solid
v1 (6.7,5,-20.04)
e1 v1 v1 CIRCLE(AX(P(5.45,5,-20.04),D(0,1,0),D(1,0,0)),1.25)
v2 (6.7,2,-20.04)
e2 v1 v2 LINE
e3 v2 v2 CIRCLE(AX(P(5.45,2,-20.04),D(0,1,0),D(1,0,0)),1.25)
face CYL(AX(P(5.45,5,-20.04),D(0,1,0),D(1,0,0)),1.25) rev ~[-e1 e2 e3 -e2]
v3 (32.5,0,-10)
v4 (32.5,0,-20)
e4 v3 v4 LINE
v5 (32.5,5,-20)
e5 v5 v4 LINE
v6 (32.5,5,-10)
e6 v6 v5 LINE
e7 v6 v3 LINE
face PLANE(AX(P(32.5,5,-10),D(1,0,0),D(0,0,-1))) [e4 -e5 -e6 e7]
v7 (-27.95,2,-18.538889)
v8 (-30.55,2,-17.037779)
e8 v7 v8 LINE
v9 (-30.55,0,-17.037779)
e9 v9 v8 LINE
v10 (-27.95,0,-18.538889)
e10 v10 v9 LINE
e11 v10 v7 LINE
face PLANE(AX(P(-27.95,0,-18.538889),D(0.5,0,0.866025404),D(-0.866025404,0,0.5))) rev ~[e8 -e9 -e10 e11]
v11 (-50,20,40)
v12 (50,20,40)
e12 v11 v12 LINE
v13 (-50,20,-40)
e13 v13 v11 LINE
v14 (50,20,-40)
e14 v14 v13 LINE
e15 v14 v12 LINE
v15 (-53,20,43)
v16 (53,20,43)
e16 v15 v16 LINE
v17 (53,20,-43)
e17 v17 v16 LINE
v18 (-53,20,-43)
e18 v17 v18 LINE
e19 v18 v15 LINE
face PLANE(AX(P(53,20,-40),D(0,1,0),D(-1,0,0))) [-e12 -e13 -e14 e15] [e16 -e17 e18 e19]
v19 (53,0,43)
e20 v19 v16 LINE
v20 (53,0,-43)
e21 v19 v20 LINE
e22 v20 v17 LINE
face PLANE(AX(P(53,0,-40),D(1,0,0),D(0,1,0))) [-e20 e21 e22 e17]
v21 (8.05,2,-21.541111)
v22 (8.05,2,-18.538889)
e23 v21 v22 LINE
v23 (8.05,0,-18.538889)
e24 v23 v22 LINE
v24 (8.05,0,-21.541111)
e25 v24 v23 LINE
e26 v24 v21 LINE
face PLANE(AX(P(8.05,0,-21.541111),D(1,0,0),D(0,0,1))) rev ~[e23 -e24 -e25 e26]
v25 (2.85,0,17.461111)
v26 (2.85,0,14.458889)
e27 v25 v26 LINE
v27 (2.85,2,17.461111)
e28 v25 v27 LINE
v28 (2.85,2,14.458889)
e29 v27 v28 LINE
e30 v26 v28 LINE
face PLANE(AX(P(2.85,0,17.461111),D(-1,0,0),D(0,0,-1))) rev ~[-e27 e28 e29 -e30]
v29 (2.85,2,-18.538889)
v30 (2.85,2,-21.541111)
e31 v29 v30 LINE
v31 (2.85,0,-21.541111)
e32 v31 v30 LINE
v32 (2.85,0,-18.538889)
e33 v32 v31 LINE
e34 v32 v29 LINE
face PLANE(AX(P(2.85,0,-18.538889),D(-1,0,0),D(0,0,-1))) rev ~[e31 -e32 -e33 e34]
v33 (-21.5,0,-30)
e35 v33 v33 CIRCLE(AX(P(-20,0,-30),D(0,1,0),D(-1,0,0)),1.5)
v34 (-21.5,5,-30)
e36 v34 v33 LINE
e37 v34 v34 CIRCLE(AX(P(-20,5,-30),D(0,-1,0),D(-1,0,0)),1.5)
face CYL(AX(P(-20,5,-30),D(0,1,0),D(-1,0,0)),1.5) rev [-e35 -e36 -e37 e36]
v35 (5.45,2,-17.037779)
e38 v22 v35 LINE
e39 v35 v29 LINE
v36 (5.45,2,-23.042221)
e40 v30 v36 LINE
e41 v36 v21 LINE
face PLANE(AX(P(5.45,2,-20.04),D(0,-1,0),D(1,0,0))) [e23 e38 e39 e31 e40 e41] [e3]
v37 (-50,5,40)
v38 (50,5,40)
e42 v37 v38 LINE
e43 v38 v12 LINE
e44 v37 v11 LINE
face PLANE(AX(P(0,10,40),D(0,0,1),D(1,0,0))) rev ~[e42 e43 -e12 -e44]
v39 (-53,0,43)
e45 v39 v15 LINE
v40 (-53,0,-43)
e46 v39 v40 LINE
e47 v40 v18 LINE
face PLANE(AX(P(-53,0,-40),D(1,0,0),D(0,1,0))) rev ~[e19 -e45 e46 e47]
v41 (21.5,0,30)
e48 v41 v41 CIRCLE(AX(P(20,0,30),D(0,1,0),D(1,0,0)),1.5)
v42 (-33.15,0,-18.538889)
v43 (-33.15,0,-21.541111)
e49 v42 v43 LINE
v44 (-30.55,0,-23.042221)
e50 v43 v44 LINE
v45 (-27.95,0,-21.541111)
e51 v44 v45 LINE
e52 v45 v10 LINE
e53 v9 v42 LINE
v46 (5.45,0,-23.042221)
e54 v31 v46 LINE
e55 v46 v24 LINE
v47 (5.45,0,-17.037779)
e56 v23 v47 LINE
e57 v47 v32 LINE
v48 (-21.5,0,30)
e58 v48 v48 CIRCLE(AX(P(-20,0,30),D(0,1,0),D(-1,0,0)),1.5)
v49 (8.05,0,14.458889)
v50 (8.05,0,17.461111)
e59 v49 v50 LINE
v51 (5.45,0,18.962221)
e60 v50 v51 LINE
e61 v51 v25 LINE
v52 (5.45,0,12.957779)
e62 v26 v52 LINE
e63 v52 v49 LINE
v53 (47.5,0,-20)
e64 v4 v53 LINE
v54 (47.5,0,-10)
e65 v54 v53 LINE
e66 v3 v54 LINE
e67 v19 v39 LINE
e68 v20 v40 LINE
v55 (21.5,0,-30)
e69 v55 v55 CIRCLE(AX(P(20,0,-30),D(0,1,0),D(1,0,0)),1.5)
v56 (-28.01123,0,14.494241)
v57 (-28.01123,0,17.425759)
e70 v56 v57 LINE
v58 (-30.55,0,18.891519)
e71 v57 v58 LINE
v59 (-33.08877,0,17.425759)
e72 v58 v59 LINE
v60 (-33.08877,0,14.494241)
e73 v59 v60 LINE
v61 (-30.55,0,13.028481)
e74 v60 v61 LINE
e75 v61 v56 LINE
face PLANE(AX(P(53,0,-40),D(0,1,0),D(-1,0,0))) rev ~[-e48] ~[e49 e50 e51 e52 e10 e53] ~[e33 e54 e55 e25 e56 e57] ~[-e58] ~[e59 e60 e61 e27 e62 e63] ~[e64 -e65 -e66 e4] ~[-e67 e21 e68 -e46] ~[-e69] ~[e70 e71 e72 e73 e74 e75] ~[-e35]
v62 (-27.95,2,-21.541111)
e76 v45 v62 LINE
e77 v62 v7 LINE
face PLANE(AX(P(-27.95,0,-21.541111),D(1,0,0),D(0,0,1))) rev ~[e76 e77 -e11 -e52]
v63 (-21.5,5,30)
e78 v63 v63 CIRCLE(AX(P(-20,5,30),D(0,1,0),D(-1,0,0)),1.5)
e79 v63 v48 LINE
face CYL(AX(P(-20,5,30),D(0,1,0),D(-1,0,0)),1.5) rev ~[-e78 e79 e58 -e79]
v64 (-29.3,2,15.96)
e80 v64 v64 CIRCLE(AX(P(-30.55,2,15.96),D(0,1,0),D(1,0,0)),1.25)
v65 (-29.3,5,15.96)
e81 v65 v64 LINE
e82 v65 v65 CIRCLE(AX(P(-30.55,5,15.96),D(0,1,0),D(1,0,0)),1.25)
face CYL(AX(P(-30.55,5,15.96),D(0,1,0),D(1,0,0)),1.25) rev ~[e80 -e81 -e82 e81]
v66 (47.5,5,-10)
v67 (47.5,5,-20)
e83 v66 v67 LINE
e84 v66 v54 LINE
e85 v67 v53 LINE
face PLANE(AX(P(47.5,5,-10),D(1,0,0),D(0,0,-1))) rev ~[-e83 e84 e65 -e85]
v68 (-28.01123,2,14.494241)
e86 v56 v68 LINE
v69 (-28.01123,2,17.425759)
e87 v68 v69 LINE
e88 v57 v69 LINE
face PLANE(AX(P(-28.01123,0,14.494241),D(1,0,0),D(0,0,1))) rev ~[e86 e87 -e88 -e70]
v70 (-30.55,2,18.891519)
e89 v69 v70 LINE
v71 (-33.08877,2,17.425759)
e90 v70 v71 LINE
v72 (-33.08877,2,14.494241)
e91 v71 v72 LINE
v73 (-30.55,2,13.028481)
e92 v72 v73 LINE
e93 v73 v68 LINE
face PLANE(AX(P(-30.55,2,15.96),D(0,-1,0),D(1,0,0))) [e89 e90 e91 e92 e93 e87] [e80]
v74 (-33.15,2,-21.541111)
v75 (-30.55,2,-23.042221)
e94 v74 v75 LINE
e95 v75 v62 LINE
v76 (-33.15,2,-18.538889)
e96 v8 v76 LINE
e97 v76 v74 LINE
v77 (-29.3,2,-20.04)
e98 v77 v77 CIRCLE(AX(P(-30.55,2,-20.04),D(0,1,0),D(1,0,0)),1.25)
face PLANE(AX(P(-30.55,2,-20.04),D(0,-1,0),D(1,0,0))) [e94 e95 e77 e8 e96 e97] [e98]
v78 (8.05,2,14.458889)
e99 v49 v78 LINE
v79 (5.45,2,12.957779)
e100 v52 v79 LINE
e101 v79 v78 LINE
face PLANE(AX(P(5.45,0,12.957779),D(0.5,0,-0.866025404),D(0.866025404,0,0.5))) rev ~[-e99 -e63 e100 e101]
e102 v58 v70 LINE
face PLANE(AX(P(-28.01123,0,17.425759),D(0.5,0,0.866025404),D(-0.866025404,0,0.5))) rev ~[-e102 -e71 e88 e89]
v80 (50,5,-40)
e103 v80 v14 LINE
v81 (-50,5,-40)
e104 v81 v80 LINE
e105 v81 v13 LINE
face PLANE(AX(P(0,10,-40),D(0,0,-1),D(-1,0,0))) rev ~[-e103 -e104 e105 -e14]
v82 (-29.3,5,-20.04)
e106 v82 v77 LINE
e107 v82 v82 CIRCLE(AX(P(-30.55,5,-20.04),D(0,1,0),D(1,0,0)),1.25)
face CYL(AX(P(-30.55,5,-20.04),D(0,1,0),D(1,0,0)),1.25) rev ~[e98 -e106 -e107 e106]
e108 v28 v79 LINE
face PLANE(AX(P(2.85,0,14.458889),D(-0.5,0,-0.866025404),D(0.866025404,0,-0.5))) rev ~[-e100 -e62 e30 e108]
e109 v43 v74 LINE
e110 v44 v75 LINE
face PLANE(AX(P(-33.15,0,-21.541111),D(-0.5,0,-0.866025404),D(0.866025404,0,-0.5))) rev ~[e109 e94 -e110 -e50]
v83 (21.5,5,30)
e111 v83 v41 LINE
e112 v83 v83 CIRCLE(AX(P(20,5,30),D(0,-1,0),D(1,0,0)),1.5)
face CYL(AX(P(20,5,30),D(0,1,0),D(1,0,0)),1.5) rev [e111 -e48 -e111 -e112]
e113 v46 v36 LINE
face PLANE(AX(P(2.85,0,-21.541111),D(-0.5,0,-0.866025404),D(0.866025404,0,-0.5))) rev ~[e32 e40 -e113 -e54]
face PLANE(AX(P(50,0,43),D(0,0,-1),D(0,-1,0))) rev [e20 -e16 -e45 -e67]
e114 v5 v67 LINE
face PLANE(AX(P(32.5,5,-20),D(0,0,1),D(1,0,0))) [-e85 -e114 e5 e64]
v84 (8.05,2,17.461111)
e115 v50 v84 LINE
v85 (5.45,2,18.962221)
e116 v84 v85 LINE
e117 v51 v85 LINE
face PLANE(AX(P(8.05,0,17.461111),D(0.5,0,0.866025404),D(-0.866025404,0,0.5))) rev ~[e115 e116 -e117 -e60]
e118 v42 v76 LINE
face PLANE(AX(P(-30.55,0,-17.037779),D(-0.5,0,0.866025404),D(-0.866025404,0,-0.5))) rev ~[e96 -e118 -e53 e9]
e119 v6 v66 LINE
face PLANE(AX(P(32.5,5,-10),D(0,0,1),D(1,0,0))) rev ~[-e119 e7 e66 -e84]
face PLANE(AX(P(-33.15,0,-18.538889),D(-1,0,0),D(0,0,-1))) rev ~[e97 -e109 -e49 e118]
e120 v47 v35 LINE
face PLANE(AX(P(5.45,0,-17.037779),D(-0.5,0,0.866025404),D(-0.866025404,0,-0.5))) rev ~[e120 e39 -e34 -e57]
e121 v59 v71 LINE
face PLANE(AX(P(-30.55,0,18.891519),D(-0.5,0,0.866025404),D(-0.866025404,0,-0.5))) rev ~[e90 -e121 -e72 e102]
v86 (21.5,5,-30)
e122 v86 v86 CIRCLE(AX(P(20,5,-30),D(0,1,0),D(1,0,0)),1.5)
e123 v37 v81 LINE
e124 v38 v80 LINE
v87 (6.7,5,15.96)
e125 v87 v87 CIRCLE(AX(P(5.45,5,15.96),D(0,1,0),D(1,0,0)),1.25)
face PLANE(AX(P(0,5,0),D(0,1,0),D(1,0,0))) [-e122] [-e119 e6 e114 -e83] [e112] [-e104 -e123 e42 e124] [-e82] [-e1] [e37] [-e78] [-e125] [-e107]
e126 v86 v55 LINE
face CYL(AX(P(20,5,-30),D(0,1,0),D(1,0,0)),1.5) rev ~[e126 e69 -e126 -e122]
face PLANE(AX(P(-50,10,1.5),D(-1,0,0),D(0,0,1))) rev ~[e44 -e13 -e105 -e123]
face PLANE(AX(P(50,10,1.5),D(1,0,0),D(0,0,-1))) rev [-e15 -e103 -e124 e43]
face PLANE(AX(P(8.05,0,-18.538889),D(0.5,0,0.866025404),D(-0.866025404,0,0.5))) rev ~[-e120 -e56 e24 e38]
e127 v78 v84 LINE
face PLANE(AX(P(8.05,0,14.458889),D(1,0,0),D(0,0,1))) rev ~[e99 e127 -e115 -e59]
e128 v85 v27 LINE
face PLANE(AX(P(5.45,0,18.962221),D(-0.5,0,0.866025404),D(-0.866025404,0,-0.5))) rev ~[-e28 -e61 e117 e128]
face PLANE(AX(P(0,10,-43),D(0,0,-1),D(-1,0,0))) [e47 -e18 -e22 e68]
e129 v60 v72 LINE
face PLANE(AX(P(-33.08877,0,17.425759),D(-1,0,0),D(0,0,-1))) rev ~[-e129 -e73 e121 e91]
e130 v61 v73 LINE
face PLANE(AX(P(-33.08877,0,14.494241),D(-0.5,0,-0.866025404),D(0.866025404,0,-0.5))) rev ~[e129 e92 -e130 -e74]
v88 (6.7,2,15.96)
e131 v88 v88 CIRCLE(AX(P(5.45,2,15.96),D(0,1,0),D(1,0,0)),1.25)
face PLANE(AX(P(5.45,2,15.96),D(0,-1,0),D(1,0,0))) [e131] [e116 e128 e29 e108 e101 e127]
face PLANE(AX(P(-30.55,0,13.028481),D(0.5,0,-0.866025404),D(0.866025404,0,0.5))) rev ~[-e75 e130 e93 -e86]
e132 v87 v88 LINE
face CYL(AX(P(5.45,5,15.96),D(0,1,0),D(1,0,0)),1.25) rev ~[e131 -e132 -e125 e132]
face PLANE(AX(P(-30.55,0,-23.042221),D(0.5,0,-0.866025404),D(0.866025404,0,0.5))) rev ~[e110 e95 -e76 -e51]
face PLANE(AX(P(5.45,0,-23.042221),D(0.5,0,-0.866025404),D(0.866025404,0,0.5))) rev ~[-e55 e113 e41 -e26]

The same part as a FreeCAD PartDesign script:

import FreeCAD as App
import Part
import Sketcher

V = App.Vector
Q = App.Units.Quantity


def add_polygon(sketch, points):
    """Adds a closed chain of lines whose ends are joined by coincident constraints."""
    first, n = sketch.GeometryCount, len(points)
    for a, b in zip(points, points[1:] + points[:1]):
        sketch.addGeometry(Part.LineSegment(App.Vector(*a, 0), App.Vector(*b, 0)), False)
    for i in range(n):
        sketch.addConstraint(Sketcher.Constraint("Coincident", first + i, 2, first + (i + 1) % n, 1))

doc = App.newDocument("Part")
body = doc.addObject("PartDesign::Body", "Body")

# Sketch on XZ plane
sketch1 = body.newObject("Sketcher::SketchObject", "Sketch")
sketch1.AttachmentSupport = (doc.getObject("XZ_Plane"), [""])
sketch1.MapMode = "FlatFace"
add_polygon(sketch1, [(-50, -40), (-50, 40), (50, 40), (50, -40)])  # lines 0-3
sketch1.addConstraint(Sketcher.Constraint("Vertical", 0))
sketch1.addConstraint(Sketcher.Constraint("Horizontal", 1))
sketch1.addConstraint(Sketcher.Constraint("Vertical", 2))
sketch1.addConstraint(Sketcher.Constraint("Horizontal", 3))
sketch1.addConstraint(Sketcher.Constraint("Symmetric", 0, 2, 2, 2, -1, 1))
sketch1.addConstraint(Sketcher.Constraint("DistanceX", 1, 1, 1, 2, 100.0))
sketch1.addConstraint(Sketcher.Constraint("DistanceY", 0, 1, 0, 2, 80.0))
pad1 = body.newObject("PartDesign::Pad", "Pad")
pad1.Profile = sketch1
pad1.Length = 5
pad1.Reversed = True

# Sketch on XZ plane
sketch2 = body.newObject("Sketcher::SketchObject", "Sketch001")
sketch2.AttachmentSupport = (doc.getObject("XZ_Plane"), [""])
sketch2.MapMode = "FlatFace"
sketch2.AttachmentOffset = App.Placement(V(0, 0, -5), App.Rotation())
sketch2.addGeometry(Part.Circle(V(20, -30, 0), V(0, 0, 1), 1.5), False)
sketch2.addConstraint(Sketcher.Constraint("Diameter", 0, 3.0))
sketch2.addConstraint(Sketcher.Constraint("DistanceX", -1, 1, 0, 3, 20.0))
sketch2.addConstraint(Sketcher.Constraint("DistanceY", 0, 3, -1, 1, 30.0))
pocket1 = body.newObject("PartDesign::Pocket", "Pocket")
pocket1.Profile = sketch2
pocket1.Type = "ThroughAll"
pocket1.Reversed = True
doc.recompute()

mirrored = body.newObject("PartDesign::Mirrored", "Mirrored")
mirrored.Originals = [pocket1]
mirrored.MirrorPlane = (doc.getObject("YZ_Plane"), [""])
body.Tip = mirrored
doc.recompute()

mirrored2 = body.newObject("PartDesign::Mirrored", "Mirrored001")
mirrored2.Originals = [pocket1]
mirrored2.MirrorPlane = (doc.getObject("XY_Plane"), [""])
body.Tip = mirrored2

# Sketch on XZ plane
sketch3 = body.newObject("Sketcher::SketchObject", "Sketch002")
sketch3.AttachmentSupport = (doc.getObject("XZ_Plane"), [""])
sketch3.MapMode = "FlatFace"
sketch3.AttachmentOffset = App.Placement(V(0, 0, -5), App.Rotation())
sketch3.addGeometry(Part.Circle(V(-20, 30, 0), V(0, 0, 1), 1.5), False)
sketch3.addConstraint(Sketcher.Constraint("Diameter", 0, 3.0))
sketch3.addConstraint(Sketcher.Constraint("DistanceX", 0, 3, -1, 1, 20.0))
sketch3.addConstraint(Sketcher.Constraint("DistanceY", -1, 1, 0, 3, 30.0))
pocket2 = body.newObject("PartDesign::Pocket", "Pocket001")
pocket2.Profile = sketch3
pocket2.Type = "ThroughAll"
pocket2.Reversed = True

# Sketch on XY plane
sketch4 = body.newObject("Sketcher::SketchObject", "Sketch003")
sketch4.AttachmentSupport = (doc.getObject("XY_Plane"), [""])
sketch4.MapMode = "FlatFace"
sketch4.AttachmentOffset = App.Placement(V(0, 0, 40), App.Rotation())
add_polygon(sketch4, [(-50, 20), (-50, 0), (50, 0), (50, 20)])  # lines 0-3
sketch4.addConstraint(Sketcher.Constraint("Vertical", 0))
sketch4.addConstraint(Sketcher.Constraint("Horizontal", 1))
sketch4.addConstraint(Sketcher.Constraint("Vertical", 2))
sketch4.addConstraint(Sketcher.Constraint("Horizontal", 3))
sketch4.addConstraint(Sketcher.Constraint("Symmetric", 0, 2, 1, 2, -1, 1))
sketch4.addConstraint(Sketcher.Constraint("DistanceX", 1, 1, 1, 2, 100.0))
sketch4.addConstraint(Sketcher.Constraint("DistanceY", 0, 2, 0, 1, 20.0))
pad2 = body.newObject("PartDesign::Pad", "Pad001")
pad2.Profile = sketch4
pad2.Length = 3

# Sketch on YZ plane
sketch5 = body.newObject("Sketcher::SketchObject", "Sketch004")
sketch5.AttachmentSupport = (doc.getObject("YZ_Plane"), [""])
sketch5.MapMode = "FlatFace"
sketch5.AttachmentOffset = App.Placement(V(0, 0, -50), App.Rotation())
add_polygon(sketch5, [(20, -40), (0, -40), (0, 43), (20, 43)])  # lines 0-3
sketch5.addConstraint(Sketcher.Constraint("Horizontal", 0))
sketch5.addConstraint(Sketcher.Constraint("Vertical", 1))
sketch5.addConstraint(Sketcher.Constraint("Horizontal", 2))
sketch5.addConstraint(Sketcher.Constraint("Vertical", 3))
sketch5.addConstraint(Sketcher.Constraint("PointOnObject", 0, 2, -2))
sketch5.addConstraint(Sketcher.Constraint("DistanceX", 0, 2, 0, 1, 20.0))
sketch5.addConstraint(Sketcher.Constraint("DistanceY", 1, 1, 1, 2, 83.0))
sketch5.addConstraint(Sketcher.Constraint("DistanceY", 0, 2, -1, 1, 40.0))
pad3 = body.newObject("PartDesign::Pad", "Pad002")
pad3.Profile = sketch5
pad3.Length = 3
pad3.Reversed = True
doc.recompute()

mirrored3 = body.newObject("PartDesign::Mirrored", "Mirrored002")
mirrored3.Originals = [pad3]
mirrored3.MirrorPlane = (doc.getObject("YZ_Plane"), [""])
body.Tip = mirrored3

# Sketch on XY plane
sketch6 = body.newObject("Sketcher::SketchObject", "Sketch005")
sketch6.AttachmentSupport = (doc.getObject("XY_Plane"), [""])
sketch6.MapMode = "FlatFace"
sketch6.AttachmentOffset = App.Placement(V(0, 0, -40), App.Rotation())
add_polygon(sketch6, [(53, 20), (53, 0), (-53, 0), (-53, 20)])  # lines 0-3
sketch6.addConstraint(Sketcher.Constraint("Vertical", 0))
sketch6.addConstraint(Sketcher.Constraint("Horizontal", 1))
sketch6.addConstraint(Sketcher.Constraint("Vertical", 2))
sketch6.addConstraint(Sketcher.Constraint("Horizontal", 3))
sketch6.addConstraint(Sketcher.Constraint("Symmetric", 0, 2, 1, 2, -1, 1))
sketch6.addConstraint(Sketcher.Constraint("DistanceX", 1, 2, 1, 1, 106.0))
sketch6.addConstraint(Sketcher.Constraint("DistanceY", 0, 2, 0, 1, 20.0))
pad4 = body.newObject("PartDesign::Pad", "Pad003")
pad4.Profile = sketch6
pad4.Length = 3
pad4.Reversed = True

# Sketch on XZ plane
sketch7 = body.newObject("Sketcher::SketchObject", "Sketch006")
sketch7.AttachmentSupport = (doc.getObject("XZ_Plane"), [""])
sketch7.MapMode = "FlatFace"
sketch7.AttachmentOffset = App.Placement(V(0, 0, -5), App.Rotation())
sketch7.addGeometry(Part.Circle(V(5.5, -20, 0), V(0, 0, 1), 1.2), False)
sketch7.addGeometry(Part.Circle(V(-30.6, -20, 0), V(0, 0, 1), 1.2), False)
sketch7.addGeometry(Part.Circle(V(-30.6, 16, 0), V(0, 0, 1), 1.2), False)
sketch7.addGeometry(Part.Circle(V(5.5, 16, 0), V(0, 0, 1), 1.2), False)
sketch7.addConstraint(Sketcher.Constraint("Equal", 0, 1))
sketch7.addConstraint(Sketcher.Constraint("Equal", 1, 2))
sketch7.addConstraint(Sketcher.Constraint("Equal", 2, 3))
sketch7.addConstraint(Sketcher.Constraint("Horizontal", 0, 3, 1, 3))
sketch7.addConstraint(Sketcher.Constraint("Horizontal", 2, 3, 3, 3))
sketch7.addConstraint(Sketcher.Constraint("Vertical", 1, 3, 2, 3))
sketch7.addConstraint(Sketcher.Constraint("Vertical", 0, 3, 3, 3))
sketch7.addConstraint(Sketcher.Constraint("Diameter", 0, 2.5))
sketch7.addConstraint(Sketcher.Constraint("DistanceX", 1, 3, 0, 3, 36.0))
sketch7.addConstraint(Sketcher.Constraint("DistanceY", 1, 3, 2, 3, 36.0))
sketch7.addConstraint(Sketcher.Constraint("DistanceX", -1, 1, 0, 3, 5.45))
sketch7.addConstraint(Sketcher.Constraint("DistanceY", 0, 3, -1, 1, 20.04))
pocket3 = body.newObject("PartDesign::Pocket", "Pocket002")
pocket3.Profile = sketch7
pocket3.Type = "ThroughAll"
pocket3.Reversed = True

# Sketch on XZ plane
sketch8 = body.newObject("Sketcher::SketchObject", "Sketch007")
sketch8.AttachmentSupport = (doc.getObject("XZ_Plane"), [""])
sketch8.MapMode = "FlatFace"
add_polygon(sketch8, [(-28, 17.4), (-30.6, 18.9), (-33.1, 17.4), (-33.1, 14.5), (-30.6, 13), (-28, 14.5)])  # lines 0-5
add_polygon(sketch8, [(-30.6, -17), (-33.1, -18.5), (-33.1, -21.5), (-30.6, -23), (-27.9, -21.5), (-27.9, -18.5)])  # lines 6-11
add_polygon(sketch8, [(5.5, 19), (2.9, 17.5), (2.9, 14.5), (5.5, 13), (8.1, 14.5), (8.1, 17.5)])  # lines 12-17
add_polygon(sketch8, [(5.5, -17), (2.9, -18.5), (2.9, -21.5), (5.5, -23), (8.1, -21.5), (8.1, -18.5)])  # lines 18-23
sketch8.addConstraint(Sketcher.Constraint("Vertical", 2))
sketch8.addConstraint(Sketcher.Constraint("Vertical", 5))
sketch8.addConstraint(Sketcher.Constraint("Vertical", 7))
sketch8.addConstraint(Sketcher.Constraint("Vertical", 10))
sketch8.addConstraint(Sketcher.Constraint("Vertical", 13))
sketch8.addConstraint(Sketcher.Constraint("Vertical", 16))
sketch8.addConstraint(Sketcher.Constraint("Vertical", 19))
sketch8.addConstraint(Sketcher.Constraint("Vertical", 22))
sketch8.addConstraint(Sketcher.Constraint("Parallel", 0, 3))
sketch8.addConstraint(Sketcher.Constraint("Parallel", 1, 4))
sketch8.addConstraint(Sketcher.Constraint("Parallel", 4, 6))
sketch8.addConstraint(Sketcher.Constraint("Parallel", 3, 8))
sketch8.addConstraint(Sketcher.Constraint("Parallel", 6, 9))
sketch8.addConstraint(Sketcher.Constraint("Parallel", 8, 11))
sketch8.addConstraint(Sketcher.Constraint("Parallel", 9, 12))
sketch8.addConstraint(Sketcher.Constraint("Parallel", 11, 14))
sketch8.addConstraint(Sketcher.Constraint("Parallel", 12, 15))
sketch8.addConstraint(Sketcher.Constraint("Parallel", 14, 17))
sketch8.addConstraint(Sketcher.Constraint("Parallel", 15, 18))
sketch8.addConstraint(Sketcher.Constraint("Parallel", 17, 20))
sketch8.addConstraint(Sketcher.Constraint("Parallel", 18, 21))
sketch8.addConstraint(Sketcher.Constraint("Parallel", 20, 23))
sketch8.addConstraint(Sketcher.Constraint("Horizontal", 2, 2, 4, 2))
sketch8.addConstraint(Sketcher.Constraint("Horizontal", 1, 2, 5, 2))
sketch8.addConstraint(Sketcher.Constraint("Horizontal", 7, 2, 9, 2))
sketch8.addConstraint(Sketcher.Constraint("Horizontal", 6, 2, 10, 2))
sketch8.addConstraint(Sketcher.Constraint("Horizontal", 13, 2, 15, 2))
sketch8.addConstraint(Sketcher.Constraint("Horizontal", 12, 2, 16, 2))
sketch8.addConstraint(Sketcher.Constraint("Horizontal", 10, 2, 18, 2))
sketch8.addConstraint(Sketcher.Constraint("Horizontal", 9, 2, 19, 2))
sketch8.addConstraint(Sketcher.Constraint("Horizontal", 8, 2, 20, 2))
sketch8.addConstraint(Sketcher.Constraint("Horizontal", 19, 2, 21, 2))
sketch8.addConstraint(Sketcher.Constraint("Horizontal", 18, 2, 22, 2))
sketch8.addConstraint(Sketcher.Constraint("Vertical", 0, 2, 3, 2))
sketch8.addConstraint(Sketcher.Constraint("Vertical", 3, 2, 8, 2))
sketch8.addConstraint(Sketcher.Constraint("Vertical", 13, 2, 18, 2))
sketch8.addConstraint(Sketcher.Constraint("Vertical", 17, 2, 20, 2))
sketch8.addConstraint(Sketcher.Constraint("Equal", 10, 13))
sketch8.addConstraint(Sketcher.Constraint("Angle", 0, Q("150 deg")))
sketch8.addConstraint(Sketcher.Constraint("DistanceX", 3, 2, 14, 2, 36.0))
sketch8.addConstraint(Sketcher.Constraint("DistanceX", 6, 2, 3, 2, 2.6))
sketch8.addConstraint(Sketcher.Constraint("DistanceX", 0, 2, -1, 1, 30.55))
sketch8.addConstraint(Sketcher.Constraint("DistanceY", 2, 2, 2, 1, 2.931519))
sketch8.addConstraint(Sketcher.Constraint("DistanceY", 7, 2, 7, 1, 3.002221))
sketch8.addConstraint(Sketcher.Constraint("Distance", 0, 2.931519))
sketch8.addConstraint(Sketcher.Constraint("DistanceY", -1, 1, 0, 2, 18.891519))
sketch8.addConstraint(Sketcher.Constraint("DistanceY", 6, 2, -1, 1, 18.538889))
sketch8.addConstraint(Sketcher.Constraint("DistanceY", -1, 1, 12, 2, 17.461111))
pocket4 = body.newObject("PartDesign::Pocket", "Pocket003")
pocket4.Profile = sketch8
pocket4.Length = 2

# Sketch on XZ plane
sketch9 = body.newObject("Sketcher::SketchObject", "Sketch008")
sketch9.AttachmentSupport = (doc.getObject("XZ_Plane"), [""])
sketch9.MapMode = "FlatFace"
sketch9.AttachmentOffset = App.Placement(V(0, 0, -5), App.Rotation())
add_polygon(sketch9, [(32, -20), (32, -10), (48, -10), (48, -20)])  # lines 0-3
sketch9.addConstraint(Sketcher.Constraint("Vertical", 0))
sketch9.addConstraint(Sketcher.Constraint("Horizontal", 1))
sketch9.addConstraint(Sketcher.Constraint("Vertical", 2))
sketch9.addConstraint(Sketcher.Constraint("Horizontal", 3))
sketch9.addConstraint(Sketcher.Constraint("DistanceX", 1, 1, 1, 2, 15.0))
sketch9.addConstraint(Sketcher.Constraint("DistanceY", 0, 1, 0, 2, 10.0))
sketch9.addConstraint(Sketcher.Constraint("DistanceY", 0, 2, -1, 1, 10.0))
sketch9.addConstraint(Sketcher.Constraint("DistanceX", -1, 1, 0, 2, 32.5))
pocket5 = body.newObject("PartDesign::Pocket", "Pocket004")
pocket5.Profile = sketch9
pocket5.Type = "ThroughAll"
pocket5.Reversed = True

doc.recompute()
